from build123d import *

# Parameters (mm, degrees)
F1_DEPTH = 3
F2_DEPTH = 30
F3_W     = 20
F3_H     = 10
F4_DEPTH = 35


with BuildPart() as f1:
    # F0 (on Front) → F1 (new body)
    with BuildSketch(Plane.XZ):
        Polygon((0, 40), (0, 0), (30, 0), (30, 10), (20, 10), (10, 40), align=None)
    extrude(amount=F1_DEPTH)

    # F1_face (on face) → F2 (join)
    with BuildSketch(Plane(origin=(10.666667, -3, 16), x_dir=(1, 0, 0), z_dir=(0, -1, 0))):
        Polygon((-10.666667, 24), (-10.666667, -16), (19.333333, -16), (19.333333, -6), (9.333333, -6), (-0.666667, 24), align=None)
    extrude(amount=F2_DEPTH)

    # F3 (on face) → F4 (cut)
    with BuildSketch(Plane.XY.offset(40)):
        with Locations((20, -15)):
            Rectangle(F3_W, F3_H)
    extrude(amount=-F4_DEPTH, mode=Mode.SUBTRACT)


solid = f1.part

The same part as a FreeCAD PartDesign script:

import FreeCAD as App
import Part
import Sketcher

V = App.Vector

doc = App.newDocument("Part")
params = doc.addObject("Spreadsheet::Sheet", "Params")
for row, (alias, value) in enumerate([
    ("sketch1_width", "30 mm"),
    ("sketch1_width2", "10 mm"),
    ("sketch1_height", "40 mm"),
    ("pad1_length", "3 mm"),
    ("sketch2_width", "30 mm"),
    ("sketch2_width2", "10 mm"),
    ("sketch2_height", "40 mm"),
    ("pad2_length", "30 mm"),
    ("sketch3_width", "20 mm"),
    ("sketch3_height", "10 mm"),
    ("pocket1_length", "35 mm"),
], start=1):
    params.set(f"A{row}", alias)
    params.set(f"B{row}", "=" + value)
    params.setAlias(f"B{row}", alias)

body = doc.addObject("PartDesign::Body", "Body")

# Sketch on XZ plane
sketch1 = body.newObject("Sketcher::SketchObject", "Sketch")
sketch1.AttachmentSupport = (doc.getObject("XZ_Plane"), [""])
sketch1.MapMode = "FlatFace"
sketch1.addGeometry([
    Part.LineSegment(V(0, 40, 0), V(0, 0, 0)),  # 0
    Part.LineSegment(V(0, 0, 0), V(30, 0, 0)),  # 1
    Part.LineSegment(V(30, 0, 0), V(30, 10, 0)),  # 2
    Part.LineSegment(V(30, 10, 0), V(20, 10, 0)),  # 3
    Part.LineSegment(V(20, 10, 0), V(10, 40, 0)),  # 4
    Part.LineSegment(V(10, 40, 0), V(0, 40, 0)),  # 5
], False)
sketch1.addConstraint([
    Sketcher.Constraint("Coincident", 0, 2, 1, 1),
    Sketcher.Constraint("Coincident", 1, 2, 2, 1),
    Sketcher.Constraint("Coincident", 2, 2, 3, 1),
    Sketcher.Constraint("Coincident", 3, 2, 4, 1),
    Sketcher.Constraint("Coincident", 4, 2, 5, 1),
    Sketcher.Constraint("Coincident", 5, 2, 0, 1),
    Sketcher.Constraint("Vertical", 0),
    Sketcher.Constraint("Horizontal", 1),
    Sketcher.Constraint("Vertical", 2),
    Sketcher.Constraint("Horizontal", 3),
    Sketcher.Constraint("Horizontal", 5),
    Sketcher.Constraint("Coincident", 0, 2, -1, 1),
    Sketcher.Constraint("Equal", 3, 5),
    Sketcher.Constraint("Equal", 5, 2),
    Sketcher.Constraint("DistanceX", 1, 1, 1, 2, 30.0),
    Sketcher.Constraint("DistanceX", 3, 2, 3, 1, 10.0),
    Sketcher.Constraint("DistanceY", 0, 2, 0, 1, 40.0),
])
sketch1.setExpression("Constraints[14]", "Params.sketch1_width")
sketch1.setExpression("Constraints[15]", "Params.sketch1_width2")
sketch1.setExpression("Constraints[16]", "Params.sketch1_height")
pad1 = body.newObject("PartDesign::Pad", "Pad")
pad1.Profile = sketch1
pad1.setExpression("Length", "Params.pad1_length")

# Sketch on XZ plane
sketch2 = body.newObject("Sketcher::SketchObject", "Sketch001")
sketch2.AttachmentSupport = (doc.getObject("XZ_Plane"), [""])
sketch2.MapMode = "FlatFace"
sketch2.AttachmentOffset = App.Placement(V(0, 0, 3), App.Rotation())
sketch2.addGeometry([
    Part.LineSegment(V(0, 40, 0), V(0, 0, 0)),  # 0
    Part.LineSegment(V(0, 0, 0), V(30, 0, 0)),  # 1
    Part.LineSegment(V(30, 0, 0), V(30, 10, 0)),  # 2
    Part.LineSegment(V(30, 10, 0), V(20, 10, 0)),  # 3
    Part.LineSegment(V(20, 10, 0), V(10, 40, 0)),  # 4
    Part.LineSegment(V(10, 40, 0), V(0, 40, 0)),  # 5
], False)
sketch2.addConstraint([
    Sketcher.Constraint("Coincident", 0, 2, 1, 1),
    Sketcher.Constraint("Coincident", 1, 2, 2, 1),
    Sketcher.Constraint("Coincident", 2, 2, 3, 1),
    Sketcher.Constraint("Coincident", 3, 2, 4, 1),
    Sketcher.Constraint("Coincident", 4, 2, 5, 1),
    Sketcher.Constraint("Coincident", 5, 2, 0, 1),
    Sketcher.Constraint("Vertical", 0),
    Sketcher.Constraint("Horizontal", 1),
    Sketcher.Constraint("Vertical", 2),
    Sketcher.Constraint("Horizontal", 3),
    Sketcher.Constraint("Horizontal", 5),
    Sketcher.Constraint("Coincident", 0, 2, -1, 1),
    Sketcher.Constraint("Equal", 3, 5),
    Sketcher.Constraint("Equal", 5, 2),
    Sketcher.Constraint("DistanceX", 1, 1, 1, 2, 30.0),
    Sketcher.Constraint("DistanceX", 3, 2, 3, 1, 10.0),
    Sketcher.Constraint("DistanceY", 0, 2, 0, 1, 40.0),
])
sketch2.setExpression("Constraints[14]", "Params.sketch2_width")
sketch2.setExpression("Constraints[15]", "Params.sketch2_width2")
sketch2.setExpression("Constraints[16]", "Params.sketch2_height")
pad2 = body.newObject("PartDesign::Pad", "Pad001")
pad2.Profile = sketch2
pad2.setExpression("Length", "Params.pad2_length")

# Sketch on XY plane
sketch3 = body.newObject("Sketcher::SketchObject", "Sketch002")
sketch3.AttachmentSupport = (doc.getObject("XY_Plane"), [""])
sketch3.MapMode = "FlatFace"
sketch3.AttachmentOffset = App.Placement(V(0, 0, 40), App.Rotation())
sketch3.addGeometry([
    Part.LineSegment(V(10, -10, 0), V(10, -20, 0)),
    Part.LineSegment(V(10, -20, 0), V(30, -20, 0)),
    Part.LineSegment(V(30, -20, 0), V(30, -10, 0)),
    Part.LineSegment(V(30, -10, 0), V(10, -10, 0)),
], False)
sketch3.addConstraint([
    Sketcher.Constraint("Coincident", 0, 2, 1, 1),
    Sketcher.Constraint("Coincident", 1, 2, 2, 1),
    Sketcher.Constraint("Coincident", 2, 2, 3, 1),
    Sketcher.Constraint("Coincident", 3, 2, 0, 1),
    Sketcher.Constraint("Vertical", 0),
    Sketcher.Constraint("Horizontal", 1),
    Sketcher.Constraint("Vertical", 2),
    Sketcher.Constraint("Horizontal", 3),
    Sketcher.Constraint("DistanceX", 1, 1, 1, 2, 20.0),
    Sketcher.Constraint("DistanceY", 0, 2, 0, 1, 10.0),
    Sketcher.Constraint("DistanceX", -1, 1, 0, 2, 10.0),
    Sketcher.Constraint("DistanceY", 0, 2, -1, 1, 20.0),
])
sketch3.setExpression("Constraints[8]", "Params.sketch3_width")
sketch3.setExpression("Constraints[9]", "Params.sketch3_height")
pocket1 = body.newObject("PartDesign::Pocket", "Pocket")
pocket1.Profile = sketch3
pocket1.setExpression("Length", "Params.pocket1_length")

doc.recompute()
